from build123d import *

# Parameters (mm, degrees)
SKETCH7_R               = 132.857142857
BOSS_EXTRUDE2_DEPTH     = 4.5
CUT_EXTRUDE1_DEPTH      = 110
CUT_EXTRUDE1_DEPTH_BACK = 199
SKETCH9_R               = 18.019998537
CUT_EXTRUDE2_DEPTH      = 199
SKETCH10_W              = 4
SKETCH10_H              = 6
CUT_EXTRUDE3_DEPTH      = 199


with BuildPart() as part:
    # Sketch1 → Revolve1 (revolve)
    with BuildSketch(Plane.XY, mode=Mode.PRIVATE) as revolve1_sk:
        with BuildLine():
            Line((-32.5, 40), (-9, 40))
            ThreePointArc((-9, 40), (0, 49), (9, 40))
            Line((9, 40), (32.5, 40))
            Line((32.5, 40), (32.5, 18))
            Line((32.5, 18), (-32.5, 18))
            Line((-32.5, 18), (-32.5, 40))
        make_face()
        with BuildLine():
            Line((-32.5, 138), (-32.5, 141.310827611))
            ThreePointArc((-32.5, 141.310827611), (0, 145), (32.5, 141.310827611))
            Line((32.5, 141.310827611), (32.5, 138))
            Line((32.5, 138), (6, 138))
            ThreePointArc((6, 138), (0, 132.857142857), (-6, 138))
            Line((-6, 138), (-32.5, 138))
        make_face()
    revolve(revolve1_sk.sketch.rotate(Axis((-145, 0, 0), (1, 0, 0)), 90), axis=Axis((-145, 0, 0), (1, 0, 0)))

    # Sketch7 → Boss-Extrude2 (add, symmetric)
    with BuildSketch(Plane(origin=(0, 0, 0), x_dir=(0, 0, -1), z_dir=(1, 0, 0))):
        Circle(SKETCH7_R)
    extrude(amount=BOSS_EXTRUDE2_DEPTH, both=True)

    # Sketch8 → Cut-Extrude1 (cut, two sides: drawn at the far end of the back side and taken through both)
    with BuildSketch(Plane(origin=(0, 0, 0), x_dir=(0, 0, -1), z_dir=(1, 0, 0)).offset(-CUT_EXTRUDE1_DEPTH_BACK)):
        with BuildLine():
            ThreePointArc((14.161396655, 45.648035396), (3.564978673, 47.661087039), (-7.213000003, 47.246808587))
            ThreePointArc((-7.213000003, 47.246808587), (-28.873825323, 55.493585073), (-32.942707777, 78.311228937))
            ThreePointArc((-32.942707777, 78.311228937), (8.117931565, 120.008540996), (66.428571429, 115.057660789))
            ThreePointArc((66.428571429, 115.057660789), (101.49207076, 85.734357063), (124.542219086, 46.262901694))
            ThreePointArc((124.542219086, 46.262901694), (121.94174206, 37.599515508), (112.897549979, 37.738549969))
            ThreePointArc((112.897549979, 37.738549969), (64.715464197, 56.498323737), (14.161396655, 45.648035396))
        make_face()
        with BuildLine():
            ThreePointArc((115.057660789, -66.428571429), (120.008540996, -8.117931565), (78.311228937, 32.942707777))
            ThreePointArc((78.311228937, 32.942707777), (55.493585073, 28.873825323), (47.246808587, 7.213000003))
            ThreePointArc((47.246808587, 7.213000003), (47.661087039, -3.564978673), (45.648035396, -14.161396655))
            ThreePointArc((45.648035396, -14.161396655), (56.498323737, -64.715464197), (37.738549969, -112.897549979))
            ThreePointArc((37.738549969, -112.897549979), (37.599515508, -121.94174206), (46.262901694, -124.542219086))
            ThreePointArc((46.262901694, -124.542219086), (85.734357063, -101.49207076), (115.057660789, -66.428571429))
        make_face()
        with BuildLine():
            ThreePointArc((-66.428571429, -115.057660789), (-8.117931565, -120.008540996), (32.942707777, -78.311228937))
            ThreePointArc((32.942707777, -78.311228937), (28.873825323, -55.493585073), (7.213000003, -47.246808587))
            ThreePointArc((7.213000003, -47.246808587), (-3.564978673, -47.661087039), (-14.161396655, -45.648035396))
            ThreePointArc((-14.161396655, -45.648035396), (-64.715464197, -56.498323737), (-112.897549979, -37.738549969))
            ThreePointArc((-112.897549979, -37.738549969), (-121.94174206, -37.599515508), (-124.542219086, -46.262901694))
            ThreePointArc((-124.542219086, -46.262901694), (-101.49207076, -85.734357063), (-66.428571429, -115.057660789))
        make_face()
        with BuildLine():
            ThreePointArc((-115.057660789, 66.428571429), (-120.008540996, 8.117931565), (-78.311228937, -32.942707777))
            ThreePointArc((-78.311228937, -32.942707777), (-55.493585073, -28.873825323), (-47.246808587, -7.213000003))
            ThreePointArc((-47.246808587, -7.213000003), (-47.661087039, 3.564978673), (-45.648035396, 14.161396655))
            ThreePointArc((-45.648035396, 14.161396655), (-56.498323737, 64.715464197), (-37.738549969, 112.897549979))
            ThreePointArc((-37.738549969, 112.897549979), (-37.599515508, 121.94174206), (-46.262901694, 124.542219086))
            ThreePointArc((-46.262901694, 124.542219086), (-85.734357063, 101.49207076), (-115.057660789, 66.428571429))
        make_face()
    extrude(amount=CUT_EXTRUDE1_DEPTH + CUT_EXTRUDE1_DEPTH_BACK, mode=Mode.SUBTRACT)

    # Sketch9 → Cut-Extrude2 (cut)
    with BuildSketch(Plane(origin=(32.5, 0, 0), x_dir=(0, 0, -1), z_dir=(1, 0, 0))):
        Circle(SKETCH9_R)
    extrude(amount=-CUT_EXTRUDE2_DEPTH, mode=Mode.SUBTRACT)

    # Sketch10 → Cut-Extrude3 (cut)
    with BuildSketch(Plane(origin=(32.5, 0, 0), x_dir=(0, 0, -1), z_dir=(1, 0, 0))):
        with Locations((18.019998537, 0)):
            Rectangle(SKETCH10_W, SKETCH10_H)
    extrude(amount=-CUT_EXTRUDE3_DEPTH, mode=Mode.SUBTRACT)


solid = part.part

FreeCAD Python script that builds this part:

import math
import FreeCAD as App
import Part
import Sketcher
from FreeCAD import Vector

doc = App.newDocument("Part")
body = doc.addObject("PartDesign::Body", "Body")
body.AllowCompound = True

sketch1 = body.newObject("Sketcher::SketchObject", "Sketch")
sketch1.AttachmentSupport = (doc.getObject("XY_Plane"), [""])
sketch1.MapMode = "FlatFace"
sketch1.addGeometry([
    Part.LineSegment(Vector(-9, 40, 0), Vector(-32.5, 40, 0)),
    Part.LineSegment(Vector(-32.5, 40, 0), Vector(-32.5, 18, 0)),
    Part.LineSegment(Vector(-32.5, 18, 0), Vector(32.5, 18, 0)),
    Part.LineSegment(Vector(32.5, 18, 0), Vector(32.5, 40, 0)),
    Part.LineSegment(Vector(32.5, 40, 0), Vector(9, 40, 0)),
    Part.ArcOfCircle(Part.Circle(Vector(0, 40, 0), Vector(0, 0, 1), 9), math.radians(0), math.radians(180)),
    Part.LineSegment(Vector(-32.5, 141.3, 0), Vector(-32.5, 138, 0)),
    Part.LineSegment(Vector(-32.5, 138, 0), Vector(-6, 138, 0)),
    Part.ArcOfCircle(Part.Circle(Vector(0, 138.9, 0), Vector(0, 0, 1), 6.1), math.radians(-171), math.radians(-9)),
    Part.LineSegment(Vector(6, 138, 0), Vector(32.5, 138, 0)),
    Part.LineSegment(Vector(32.5, 138, 0), Vector(32.5, 141.3, 0)),
    Part.ArcOfCircle(Part.Circle(Vector(0, 0, 0), Vector(0, 0, 1), 145), math.radians(77), math.radians(103)),
], False)
sketch1.addConstraint([
    Sketcher.Constraint("Coincident", 0, 2, 1, 1),
    Sketcher.Constraint("Coincident", 1, 2, 2, 1),
    Sketcher.Constraint("Coincident", 2, 2, 3, 1),
    Sketcher.Constraint("Coincident", 3, 2, 4, 1),
    Sketcher.Constraint("Coincident", 4, 2, 5, 1),
    Sketcher.Constraint("Coincident", 5, 2, 0, 1),
    Sketcher.Constraint("Coincident", 6, 2, 7, 1),
    Sketcher.Constraint("Coincident", 7, 2, 8, 1),
    Sketcher.Constraint("Coincident", 8, 2, 9, 1),
    Sketcher.Constraint("Coincident", 9, 2, 10, 1),
    Sketcher.Constraint("Coincident", 10, 2, 11, 1),
    Sketcher.Constraint("Coincident", 11, 2, 6, 1),
    Sketcher.Constraint("Horizontal", 0),
    Sketcher.Constraint("Vertical", 1),
    Sketcher.Constraint("Horizontal", 2),
    Sketcher.Constraint("Vertical", 3),
    Sketcher.Constraint("Horizontal", 4),
    Sketcher.Constraint("Vertical", 6),
    Sketcher.Constraint("Horizontal", 7),
    Sketcher.Constraint("Horizontal", 9),
    Sketcher.Constraint("Vertical", 10),
    Sketcher.Constraint("Coincident", 11, 3, -1, 1),
    Sketcher.Constraint("Symmetric", 0, 2, 3, 2, -2),
    Sketcher.Constraint("Symmetric", 7, 2, 8, 2, -2),
    Sketcher.Constraint("PointOnObject", 5, 3, -2),
    Sketcher.Constraint("Horizontal", 5, 3, 0, 2),
    Sketcher.Constraint("Horizontal", 10, 2, 11, 2),
    Sketcher.Constraint("Vertical", 1, 2, 6, 2),
    Sketcher.Constraint("Radius", 5, 9.0),
    Sketcher.Constraint("Radius", 11, 145.0),
    Sketcher.Constraint("DistanceX", 2, 1, 2, 2, 65.0),
    Sketcher.Constraint("DistanceY", 1, 2, 1, 1, 22.0),
    Sketcher.Constraint("DistanceX", 7, 1, 7, 2, 26.5),
    Sketcher.Constraint("DistanceY", -1, 1, 5, 3, 40.0),
    Sketcher.Constraint("DistanceY", -1, 1, 6, 2, 138.0),
    Sketcher.Constraint("Radius", 8, 6.071429),
])
revolution = body.newObject("PartDesign::Revolution", "Revolution")
revolution.Profile = sketch1
revolution.ReferenceAxis = (sketch1, ["H_Axis"])
revolution.Angle = 360

sketch2 = body.newObject("Sketcher::SketchObject", "Sketch001")
sketch2.AttachmentSupport = (doc.getObject("YZ_Plane"), [""])
sketch2.MapMode = "FlatFace"
sketch2.addGeometry(Part.Circle(Vector(0, 0, 0), Vector(0, 0, 1), 133), False)
sketch2.addConstraint([
    Sketcher.Constraint("Coincident", 0, 3, -1, 1),
    Sketcher.Constraint("Diameter", 0, 265.714286),
])
pad1 = body.newObject("PartDesign::Pad", "Pad")
pad1.Profile = sketch2
pad1.Length = 9
pad1.Midplane = True

sketch3 = body.newObject("Sketcher::SketchObject", "Sketch002")
sketch3.AttachmentSupport = (doc.getObject("YZ_Plane"), [""])
sketch3.MapMode = "FlatFace"
sketch3.addGeometry([
    Part.ArcOfCircle(Part.Circle(Vector(0, 0, 0), Vector(0, 0, 1), 48), math.radians(-17), math.radians(9)),
    Part.ArcOfCircle(Part.Circle(Vector(-33, -58, 0), Vector(0, 0, 1), 90), math.radians(-38), math.radians(29)),
    Part.ArcOfCircle(Part.Circle(Vector(44, -118, 0), Vector(0, 0, 1), 8), math.radians(142), math.radians(290)),
    Part.ArcOfCircle(Part.Circle(Vector(0, 0, 0), Vector(0, 0, 1), 133), math.radians(-70), math.radians(-30)),
    Part.ArcOfCircle(Part.Circle(Vector(55, -32, 0), Vector(0, 0, 1), 69), math.radians(-30), math.radians(71)),
    Part.ArcOfCircle(Part.Circle(Vector(70, 11, 0), Vector(0, 0, 1), 24), math.radians(71), math.radians(189)),
    Part.ArcOfCircle(Part.Circle(Vector(-32, -55, 0), Vector(0, 0, 1), 69), math.radians(-120), math.radians(-19)),
    Part.ArcOfCircle(Part.Circle(Vector(11, -70, 0), Vector(0, 0, 1), 24), math.radians(-19), math.radians(99)),
    Part.ArcOfCircle(Part.Circle(Vector(0, 0, 0), Vector(0, 0, 1), 48), math.radians(-107), math.radians(-81)),
    Part.ArcOfCircle(Part.Circle(Vector(-58, 33, 0), Vector(0, 0, 1), 90), math.radians(-128), math.radians(-61)),
    Part.ArcOfCircle(Part.Circle(Vector(-118, -44, 0), Vector(0, 0, 1), 8), math.radians(52), math.radians(200)),
    Part.ArcOfCircle(Part.Circle(Vector(0, 0, 0), Vector(0, 0, 1), 133), math.radians(-160), math.radians(-120)),
    Part.ArcOfCircle(Part.Circle(Vector(-55, 32, 0), Vector(0, 0, 1), 69), math.radians(150), math.radians(251)),
    Part.ArcOfCircle(Part.Circle(Vector(-70, -11, 0), Vector(0, 0, 1), 24), math.radians(-109), math.radians(9)),
    Part.ArcOfCircle(Part.Circle(Vector(0, 0, 0), Vector(0, 0, 1), 48), math.radians(163), math.radians(189)),
    Part.ArcOfCircle(Part.Circle(Vector(33, 58, 0), Vector(0, 0, 1), 90), math.radians(142), math.radians(209)),
    Part.ArcOfCircle(Part.Circle(Vector(-44, 118, 0), Vector(0, 0, 1), 8), math.radians(-38), math.radians(110)),
    Part.ArcOfCircle(Part.Circle(Vector(0, 0, 0), Vector(0, 0, 1), 133), math.radians(110), math.radians(150)),
    Part.ArcOfCircle(Part.Circle(Vector(32, 55, 0), Vector(0, 0, 1), 69), math.radians(60), math.radians(161)),
    Part.ArcOfCircle(Part.Circle(Vector(-11, 70, 0), Vector(0, 0, 1), 24), math.radians(161), math.radians(279)),
    Part.ArcOfCircle(Part.Circle(Vector(0, 0, 0), Vector(0, 0, 1), 48), math.radians(73), math.radians(99)),
    Part.ArcOfCircle(Part.Circle(Vector(58, -33, 0), Vector(0, 0, 1), 90), math.radians(52), math.radians(119)),
    Part.ArcOfCircle(Part.Circle(Vector(118, 44, 0), Vector(0, 0, 1), 8), math.radians(-128), math.radians(20)),
    Part.ArcOfCircle(Part.Circle(Vector(0, 0, 0), Vector(0, 0, 1), 133), math.radians(20), math.radians(60)),
], False)
sketch3.addConstraint([
    Sketcher.Constraint("Coincident", 0, 1, 1, 2),
    Sketcher.Constraint("Tangent", 1, 1, 2, 1),
    Sketcher.Constraint("Tangent", 2, 2, 3, 1),
    Sketcher.Constraint("Tangent", 3, 2, 4, 1),
    Sketcher.Constraint("Tangent", 4, 2, 5, 1),
    Sketcher.Constraint("Tangent", 5, 2, 0, 2),
    Sketcher.Constraint("Tangent", 6, 2, 7, 1),
    Sketcher.Constraint("Tangent", 7, 2, 8, 2),
    Sketcher.Constraint("Coincident", 8, 1, 9, 2),
    Sketcher.Constraint("Tangent", 9, 1, 10, 1),
    Sketcher.Constraint("Tangent", 10, 2, 11, 1),
    Sketcher.Constraint("Tangent", 11, 2, 6, 1),
    Sketcher.Constraint("Tangent", 12, 2, 13, 1),
    Sketcher.Constraint("Tangent", 13, 2, 14, 2),
    Sketcher.Constraint("Coincident", 14, 1, 15, 2),
    Sketcher.Constraint("Tangent", 15, 1, 16, 1),
    Sketcher.Constraint("Tangent", 16, 2, 17, 1),
    Sketcher.Constraint("Tangent", 17, 2, 12, 1),
    Sketcher.Constraint("Tangent", 18, 2, 19, 1),
    Sketcher.Constraint("Tangent", 19, 2, 20, 2),
    Sketcher.Constraint("Coincident", 20, 1, 21, 2),
    Sketcher.Constraint("Tangent", 21, 1, 22, 1),
    Sketcher.Constraint("Tangent", 22, 2, 23, 1),
    Sketcher.Constraint("Tangent", 23, 2, 18, 1),
    Sketcher.Constraint("Coincident", 0, 3, -1, 1),
    Sketcher.Constraint("Coincident", 3, 3, -1, 1),
    Sketcher.Constraint("Coincident", 8, 3, -1, 1),
    Sketcher.Constraint("Coincident", 11, 3, -1, 1),
    Sketcher.Constraint("Coincident", 14, 3, -1, 1),
    Sketcher.Constraint("Coincident", 17, 3, -1, 1),
    Sketcher.Constraint("Coincident", 20, 3, -1, 1),
    Sketcher.Constraint("Coincident", 23, 3, -1, 1),
    Sketcher.Constraint("Equal", 4, 6),
    Sketcher.Constraint("Equal", 5, 7),
    Sketcher.Constraint("Equal", 0, 8),
    Sketcher.Constraint("Equal", 1, 9),
    Sketcher.Constraint("Equal", 2, 10),
    Sketcher.Constraint("Equal", 3, 11),
    Sketcher.Constraint("Equal", 6, 12),
    Sketcher.Constraint("Equal", 7, 13),
    Sketcher.Constraint("Equal", 8, 14),
    Sketcher.Constraint("Equal", 9, 15),
    Sketcher.Constraint("Equal", 10, 16),
    Sketcher.Constraint("Equal", 11, 17),
    Sketcher.Constraint("Equal", 12, 18),
    Sketcher.Constraint("Equal", 13, 19),
    Sketcher.Constraint("Equal", 14, 20),
    Sketcher.Constraint("Equal", 15, 21),
    Sketcher.Constraint("Equal", 16, 22),
    Sketcher.Constraint("Equal", 17, 23),
    Sketcher.Constraint("Symmetric", 1, 3, 15, 3, -1, 1),
    Sketcher.Constraint("Symmetric", 9, 3, 21, 3, -1, 1),
    Sketcher.Constraint("Radius", 1, 90.0),
    Sketcher.Constraint("Radius", 2, 7.5),
    Sketcher.Constraint("DistanceY", 4, 3, -1, 1, 32.0),
    Sketcher.Constraint("DistanceX", 6, 3, -1, 1, 32.0),
    Sketcher.Constraint("DistanceY", -1, 1, 12, 3, 32.0),
    Sketcher.Constraint("DistanceX", -1, 1, 18, 3, 32.0),
    Sketcher.Constraint("Radius", 0, 47.794229),
    Sketcher.Constraint("Radius", 5, 23.517442),
    Sketcher.Constraint("DistanceY", -1, 1, 5, 2, 7.213),
    Sketcher.Constraint("Radius", 3, 132.857143),
    Sketcher.Constraint("DistanceX", -1, 1, 2, 2, 46.262902),
    Sketcher.Constraint("DistanceY", 10, 2, -1, 1, 46.262902),
    Sketcher.Constraint("DistanceY", 1, 3, -1, 1, 57.52883),
    Sketcher.Constraint("DistanceX", 9, 3, -1, 1, 57.52883),
])
pocket1 = body.newObject("PartDesign::Pocket", "Pocket")
pocket1.Profile = sketch3
pocket1.Type = "ThroughAll"
pocket1.Midplane = True

sketch4 = body.newObject("Sketcher::SketchObject", "Sketch003")
sketch4.AttachmentSupport = (doc.getObject("YZ_Plane"), [""])
sketch4.MapMode = "FlatFace"
sketch4.AttachmentOffset = App.Placement(Vector(0, 0, 32.5), App.Rotation())
sketch4.addGeometry(Part.Circle(Vector(0, 0, 0), Vector(0, 0, 1), 18), False)
sketch4.addConstraint([
    Sketcher.Constraint("Coincident", 0, 3, -1, 1),
    Sketcher.Constraint("Diameter", 0, 36.039997),
])
pocket2 = body.newObject("PartDesign::Pocket", "Pocket001")
pocket2.Profile = sketch4
pocket2.Length = 199

sketch5 = body.newObject("Sketcher::SketchObject", "Sketch004")
sketch5.AttachmentSupport = (doc.getObject("YZ_Plane"), [""])
sketch5.MapMode = "FlatFace"
sketch5.AttachmentOffset = App.Placement(Vector(0, 0, 32.5), App.Rotation())
sketch5.addGeometry([
    Part.LineSegment(Vector(3, -16, 0), Vector(-3, -16, 0)),
    Part.LineSegment(Vector(-3, -16, 0), Vector(-3, -20, 0)),
    Part.LineSegment(Vector(-3, -20, 0), Vector(3, -20, 0)),
    Part.LineSegment(Vector(3, -20, 0), Vector(3, -16, 0)),
], False)
sketch5.addConstraint([
    Sketcher.Constraint("Coincident", 0, 2, 1, 1),
    Sketcher.Constraint("Coincident", 1, 2, 2, 1),
    Sketcher.Constraint("Coincident", 2, 2, 3, 1),
    Sketcher.Constraint("Coincident", 3, 2, 0, 1),
    Sketcher.Constraint("Horizontal", 0),
    Sketcher.Constraint("Vertical", 1),
    Sketcher.Constraint("Horizontal", 2),
    Sketcher.Constraint("Vertical", 3),
    Sketcher.Constraint("DistanceX", 0, 2, 0, 1, 6.0),
    Sketcher.Constraint("DistanceY", 1, 2, 1, 1, 4.0),
    Sketcher.Constraint("DistanceX", 0, 2, -1, 1, 3.0),
    Sketcher.Constraint("DistanceY", 0, 2, -1, 1, 16.019999),
])
pocket3 = body.newObject("PartDesign::Pocket", "Pocket002")
pocket3.Profile = sketch5
pocket3.Length = 199

doc.recompute()
